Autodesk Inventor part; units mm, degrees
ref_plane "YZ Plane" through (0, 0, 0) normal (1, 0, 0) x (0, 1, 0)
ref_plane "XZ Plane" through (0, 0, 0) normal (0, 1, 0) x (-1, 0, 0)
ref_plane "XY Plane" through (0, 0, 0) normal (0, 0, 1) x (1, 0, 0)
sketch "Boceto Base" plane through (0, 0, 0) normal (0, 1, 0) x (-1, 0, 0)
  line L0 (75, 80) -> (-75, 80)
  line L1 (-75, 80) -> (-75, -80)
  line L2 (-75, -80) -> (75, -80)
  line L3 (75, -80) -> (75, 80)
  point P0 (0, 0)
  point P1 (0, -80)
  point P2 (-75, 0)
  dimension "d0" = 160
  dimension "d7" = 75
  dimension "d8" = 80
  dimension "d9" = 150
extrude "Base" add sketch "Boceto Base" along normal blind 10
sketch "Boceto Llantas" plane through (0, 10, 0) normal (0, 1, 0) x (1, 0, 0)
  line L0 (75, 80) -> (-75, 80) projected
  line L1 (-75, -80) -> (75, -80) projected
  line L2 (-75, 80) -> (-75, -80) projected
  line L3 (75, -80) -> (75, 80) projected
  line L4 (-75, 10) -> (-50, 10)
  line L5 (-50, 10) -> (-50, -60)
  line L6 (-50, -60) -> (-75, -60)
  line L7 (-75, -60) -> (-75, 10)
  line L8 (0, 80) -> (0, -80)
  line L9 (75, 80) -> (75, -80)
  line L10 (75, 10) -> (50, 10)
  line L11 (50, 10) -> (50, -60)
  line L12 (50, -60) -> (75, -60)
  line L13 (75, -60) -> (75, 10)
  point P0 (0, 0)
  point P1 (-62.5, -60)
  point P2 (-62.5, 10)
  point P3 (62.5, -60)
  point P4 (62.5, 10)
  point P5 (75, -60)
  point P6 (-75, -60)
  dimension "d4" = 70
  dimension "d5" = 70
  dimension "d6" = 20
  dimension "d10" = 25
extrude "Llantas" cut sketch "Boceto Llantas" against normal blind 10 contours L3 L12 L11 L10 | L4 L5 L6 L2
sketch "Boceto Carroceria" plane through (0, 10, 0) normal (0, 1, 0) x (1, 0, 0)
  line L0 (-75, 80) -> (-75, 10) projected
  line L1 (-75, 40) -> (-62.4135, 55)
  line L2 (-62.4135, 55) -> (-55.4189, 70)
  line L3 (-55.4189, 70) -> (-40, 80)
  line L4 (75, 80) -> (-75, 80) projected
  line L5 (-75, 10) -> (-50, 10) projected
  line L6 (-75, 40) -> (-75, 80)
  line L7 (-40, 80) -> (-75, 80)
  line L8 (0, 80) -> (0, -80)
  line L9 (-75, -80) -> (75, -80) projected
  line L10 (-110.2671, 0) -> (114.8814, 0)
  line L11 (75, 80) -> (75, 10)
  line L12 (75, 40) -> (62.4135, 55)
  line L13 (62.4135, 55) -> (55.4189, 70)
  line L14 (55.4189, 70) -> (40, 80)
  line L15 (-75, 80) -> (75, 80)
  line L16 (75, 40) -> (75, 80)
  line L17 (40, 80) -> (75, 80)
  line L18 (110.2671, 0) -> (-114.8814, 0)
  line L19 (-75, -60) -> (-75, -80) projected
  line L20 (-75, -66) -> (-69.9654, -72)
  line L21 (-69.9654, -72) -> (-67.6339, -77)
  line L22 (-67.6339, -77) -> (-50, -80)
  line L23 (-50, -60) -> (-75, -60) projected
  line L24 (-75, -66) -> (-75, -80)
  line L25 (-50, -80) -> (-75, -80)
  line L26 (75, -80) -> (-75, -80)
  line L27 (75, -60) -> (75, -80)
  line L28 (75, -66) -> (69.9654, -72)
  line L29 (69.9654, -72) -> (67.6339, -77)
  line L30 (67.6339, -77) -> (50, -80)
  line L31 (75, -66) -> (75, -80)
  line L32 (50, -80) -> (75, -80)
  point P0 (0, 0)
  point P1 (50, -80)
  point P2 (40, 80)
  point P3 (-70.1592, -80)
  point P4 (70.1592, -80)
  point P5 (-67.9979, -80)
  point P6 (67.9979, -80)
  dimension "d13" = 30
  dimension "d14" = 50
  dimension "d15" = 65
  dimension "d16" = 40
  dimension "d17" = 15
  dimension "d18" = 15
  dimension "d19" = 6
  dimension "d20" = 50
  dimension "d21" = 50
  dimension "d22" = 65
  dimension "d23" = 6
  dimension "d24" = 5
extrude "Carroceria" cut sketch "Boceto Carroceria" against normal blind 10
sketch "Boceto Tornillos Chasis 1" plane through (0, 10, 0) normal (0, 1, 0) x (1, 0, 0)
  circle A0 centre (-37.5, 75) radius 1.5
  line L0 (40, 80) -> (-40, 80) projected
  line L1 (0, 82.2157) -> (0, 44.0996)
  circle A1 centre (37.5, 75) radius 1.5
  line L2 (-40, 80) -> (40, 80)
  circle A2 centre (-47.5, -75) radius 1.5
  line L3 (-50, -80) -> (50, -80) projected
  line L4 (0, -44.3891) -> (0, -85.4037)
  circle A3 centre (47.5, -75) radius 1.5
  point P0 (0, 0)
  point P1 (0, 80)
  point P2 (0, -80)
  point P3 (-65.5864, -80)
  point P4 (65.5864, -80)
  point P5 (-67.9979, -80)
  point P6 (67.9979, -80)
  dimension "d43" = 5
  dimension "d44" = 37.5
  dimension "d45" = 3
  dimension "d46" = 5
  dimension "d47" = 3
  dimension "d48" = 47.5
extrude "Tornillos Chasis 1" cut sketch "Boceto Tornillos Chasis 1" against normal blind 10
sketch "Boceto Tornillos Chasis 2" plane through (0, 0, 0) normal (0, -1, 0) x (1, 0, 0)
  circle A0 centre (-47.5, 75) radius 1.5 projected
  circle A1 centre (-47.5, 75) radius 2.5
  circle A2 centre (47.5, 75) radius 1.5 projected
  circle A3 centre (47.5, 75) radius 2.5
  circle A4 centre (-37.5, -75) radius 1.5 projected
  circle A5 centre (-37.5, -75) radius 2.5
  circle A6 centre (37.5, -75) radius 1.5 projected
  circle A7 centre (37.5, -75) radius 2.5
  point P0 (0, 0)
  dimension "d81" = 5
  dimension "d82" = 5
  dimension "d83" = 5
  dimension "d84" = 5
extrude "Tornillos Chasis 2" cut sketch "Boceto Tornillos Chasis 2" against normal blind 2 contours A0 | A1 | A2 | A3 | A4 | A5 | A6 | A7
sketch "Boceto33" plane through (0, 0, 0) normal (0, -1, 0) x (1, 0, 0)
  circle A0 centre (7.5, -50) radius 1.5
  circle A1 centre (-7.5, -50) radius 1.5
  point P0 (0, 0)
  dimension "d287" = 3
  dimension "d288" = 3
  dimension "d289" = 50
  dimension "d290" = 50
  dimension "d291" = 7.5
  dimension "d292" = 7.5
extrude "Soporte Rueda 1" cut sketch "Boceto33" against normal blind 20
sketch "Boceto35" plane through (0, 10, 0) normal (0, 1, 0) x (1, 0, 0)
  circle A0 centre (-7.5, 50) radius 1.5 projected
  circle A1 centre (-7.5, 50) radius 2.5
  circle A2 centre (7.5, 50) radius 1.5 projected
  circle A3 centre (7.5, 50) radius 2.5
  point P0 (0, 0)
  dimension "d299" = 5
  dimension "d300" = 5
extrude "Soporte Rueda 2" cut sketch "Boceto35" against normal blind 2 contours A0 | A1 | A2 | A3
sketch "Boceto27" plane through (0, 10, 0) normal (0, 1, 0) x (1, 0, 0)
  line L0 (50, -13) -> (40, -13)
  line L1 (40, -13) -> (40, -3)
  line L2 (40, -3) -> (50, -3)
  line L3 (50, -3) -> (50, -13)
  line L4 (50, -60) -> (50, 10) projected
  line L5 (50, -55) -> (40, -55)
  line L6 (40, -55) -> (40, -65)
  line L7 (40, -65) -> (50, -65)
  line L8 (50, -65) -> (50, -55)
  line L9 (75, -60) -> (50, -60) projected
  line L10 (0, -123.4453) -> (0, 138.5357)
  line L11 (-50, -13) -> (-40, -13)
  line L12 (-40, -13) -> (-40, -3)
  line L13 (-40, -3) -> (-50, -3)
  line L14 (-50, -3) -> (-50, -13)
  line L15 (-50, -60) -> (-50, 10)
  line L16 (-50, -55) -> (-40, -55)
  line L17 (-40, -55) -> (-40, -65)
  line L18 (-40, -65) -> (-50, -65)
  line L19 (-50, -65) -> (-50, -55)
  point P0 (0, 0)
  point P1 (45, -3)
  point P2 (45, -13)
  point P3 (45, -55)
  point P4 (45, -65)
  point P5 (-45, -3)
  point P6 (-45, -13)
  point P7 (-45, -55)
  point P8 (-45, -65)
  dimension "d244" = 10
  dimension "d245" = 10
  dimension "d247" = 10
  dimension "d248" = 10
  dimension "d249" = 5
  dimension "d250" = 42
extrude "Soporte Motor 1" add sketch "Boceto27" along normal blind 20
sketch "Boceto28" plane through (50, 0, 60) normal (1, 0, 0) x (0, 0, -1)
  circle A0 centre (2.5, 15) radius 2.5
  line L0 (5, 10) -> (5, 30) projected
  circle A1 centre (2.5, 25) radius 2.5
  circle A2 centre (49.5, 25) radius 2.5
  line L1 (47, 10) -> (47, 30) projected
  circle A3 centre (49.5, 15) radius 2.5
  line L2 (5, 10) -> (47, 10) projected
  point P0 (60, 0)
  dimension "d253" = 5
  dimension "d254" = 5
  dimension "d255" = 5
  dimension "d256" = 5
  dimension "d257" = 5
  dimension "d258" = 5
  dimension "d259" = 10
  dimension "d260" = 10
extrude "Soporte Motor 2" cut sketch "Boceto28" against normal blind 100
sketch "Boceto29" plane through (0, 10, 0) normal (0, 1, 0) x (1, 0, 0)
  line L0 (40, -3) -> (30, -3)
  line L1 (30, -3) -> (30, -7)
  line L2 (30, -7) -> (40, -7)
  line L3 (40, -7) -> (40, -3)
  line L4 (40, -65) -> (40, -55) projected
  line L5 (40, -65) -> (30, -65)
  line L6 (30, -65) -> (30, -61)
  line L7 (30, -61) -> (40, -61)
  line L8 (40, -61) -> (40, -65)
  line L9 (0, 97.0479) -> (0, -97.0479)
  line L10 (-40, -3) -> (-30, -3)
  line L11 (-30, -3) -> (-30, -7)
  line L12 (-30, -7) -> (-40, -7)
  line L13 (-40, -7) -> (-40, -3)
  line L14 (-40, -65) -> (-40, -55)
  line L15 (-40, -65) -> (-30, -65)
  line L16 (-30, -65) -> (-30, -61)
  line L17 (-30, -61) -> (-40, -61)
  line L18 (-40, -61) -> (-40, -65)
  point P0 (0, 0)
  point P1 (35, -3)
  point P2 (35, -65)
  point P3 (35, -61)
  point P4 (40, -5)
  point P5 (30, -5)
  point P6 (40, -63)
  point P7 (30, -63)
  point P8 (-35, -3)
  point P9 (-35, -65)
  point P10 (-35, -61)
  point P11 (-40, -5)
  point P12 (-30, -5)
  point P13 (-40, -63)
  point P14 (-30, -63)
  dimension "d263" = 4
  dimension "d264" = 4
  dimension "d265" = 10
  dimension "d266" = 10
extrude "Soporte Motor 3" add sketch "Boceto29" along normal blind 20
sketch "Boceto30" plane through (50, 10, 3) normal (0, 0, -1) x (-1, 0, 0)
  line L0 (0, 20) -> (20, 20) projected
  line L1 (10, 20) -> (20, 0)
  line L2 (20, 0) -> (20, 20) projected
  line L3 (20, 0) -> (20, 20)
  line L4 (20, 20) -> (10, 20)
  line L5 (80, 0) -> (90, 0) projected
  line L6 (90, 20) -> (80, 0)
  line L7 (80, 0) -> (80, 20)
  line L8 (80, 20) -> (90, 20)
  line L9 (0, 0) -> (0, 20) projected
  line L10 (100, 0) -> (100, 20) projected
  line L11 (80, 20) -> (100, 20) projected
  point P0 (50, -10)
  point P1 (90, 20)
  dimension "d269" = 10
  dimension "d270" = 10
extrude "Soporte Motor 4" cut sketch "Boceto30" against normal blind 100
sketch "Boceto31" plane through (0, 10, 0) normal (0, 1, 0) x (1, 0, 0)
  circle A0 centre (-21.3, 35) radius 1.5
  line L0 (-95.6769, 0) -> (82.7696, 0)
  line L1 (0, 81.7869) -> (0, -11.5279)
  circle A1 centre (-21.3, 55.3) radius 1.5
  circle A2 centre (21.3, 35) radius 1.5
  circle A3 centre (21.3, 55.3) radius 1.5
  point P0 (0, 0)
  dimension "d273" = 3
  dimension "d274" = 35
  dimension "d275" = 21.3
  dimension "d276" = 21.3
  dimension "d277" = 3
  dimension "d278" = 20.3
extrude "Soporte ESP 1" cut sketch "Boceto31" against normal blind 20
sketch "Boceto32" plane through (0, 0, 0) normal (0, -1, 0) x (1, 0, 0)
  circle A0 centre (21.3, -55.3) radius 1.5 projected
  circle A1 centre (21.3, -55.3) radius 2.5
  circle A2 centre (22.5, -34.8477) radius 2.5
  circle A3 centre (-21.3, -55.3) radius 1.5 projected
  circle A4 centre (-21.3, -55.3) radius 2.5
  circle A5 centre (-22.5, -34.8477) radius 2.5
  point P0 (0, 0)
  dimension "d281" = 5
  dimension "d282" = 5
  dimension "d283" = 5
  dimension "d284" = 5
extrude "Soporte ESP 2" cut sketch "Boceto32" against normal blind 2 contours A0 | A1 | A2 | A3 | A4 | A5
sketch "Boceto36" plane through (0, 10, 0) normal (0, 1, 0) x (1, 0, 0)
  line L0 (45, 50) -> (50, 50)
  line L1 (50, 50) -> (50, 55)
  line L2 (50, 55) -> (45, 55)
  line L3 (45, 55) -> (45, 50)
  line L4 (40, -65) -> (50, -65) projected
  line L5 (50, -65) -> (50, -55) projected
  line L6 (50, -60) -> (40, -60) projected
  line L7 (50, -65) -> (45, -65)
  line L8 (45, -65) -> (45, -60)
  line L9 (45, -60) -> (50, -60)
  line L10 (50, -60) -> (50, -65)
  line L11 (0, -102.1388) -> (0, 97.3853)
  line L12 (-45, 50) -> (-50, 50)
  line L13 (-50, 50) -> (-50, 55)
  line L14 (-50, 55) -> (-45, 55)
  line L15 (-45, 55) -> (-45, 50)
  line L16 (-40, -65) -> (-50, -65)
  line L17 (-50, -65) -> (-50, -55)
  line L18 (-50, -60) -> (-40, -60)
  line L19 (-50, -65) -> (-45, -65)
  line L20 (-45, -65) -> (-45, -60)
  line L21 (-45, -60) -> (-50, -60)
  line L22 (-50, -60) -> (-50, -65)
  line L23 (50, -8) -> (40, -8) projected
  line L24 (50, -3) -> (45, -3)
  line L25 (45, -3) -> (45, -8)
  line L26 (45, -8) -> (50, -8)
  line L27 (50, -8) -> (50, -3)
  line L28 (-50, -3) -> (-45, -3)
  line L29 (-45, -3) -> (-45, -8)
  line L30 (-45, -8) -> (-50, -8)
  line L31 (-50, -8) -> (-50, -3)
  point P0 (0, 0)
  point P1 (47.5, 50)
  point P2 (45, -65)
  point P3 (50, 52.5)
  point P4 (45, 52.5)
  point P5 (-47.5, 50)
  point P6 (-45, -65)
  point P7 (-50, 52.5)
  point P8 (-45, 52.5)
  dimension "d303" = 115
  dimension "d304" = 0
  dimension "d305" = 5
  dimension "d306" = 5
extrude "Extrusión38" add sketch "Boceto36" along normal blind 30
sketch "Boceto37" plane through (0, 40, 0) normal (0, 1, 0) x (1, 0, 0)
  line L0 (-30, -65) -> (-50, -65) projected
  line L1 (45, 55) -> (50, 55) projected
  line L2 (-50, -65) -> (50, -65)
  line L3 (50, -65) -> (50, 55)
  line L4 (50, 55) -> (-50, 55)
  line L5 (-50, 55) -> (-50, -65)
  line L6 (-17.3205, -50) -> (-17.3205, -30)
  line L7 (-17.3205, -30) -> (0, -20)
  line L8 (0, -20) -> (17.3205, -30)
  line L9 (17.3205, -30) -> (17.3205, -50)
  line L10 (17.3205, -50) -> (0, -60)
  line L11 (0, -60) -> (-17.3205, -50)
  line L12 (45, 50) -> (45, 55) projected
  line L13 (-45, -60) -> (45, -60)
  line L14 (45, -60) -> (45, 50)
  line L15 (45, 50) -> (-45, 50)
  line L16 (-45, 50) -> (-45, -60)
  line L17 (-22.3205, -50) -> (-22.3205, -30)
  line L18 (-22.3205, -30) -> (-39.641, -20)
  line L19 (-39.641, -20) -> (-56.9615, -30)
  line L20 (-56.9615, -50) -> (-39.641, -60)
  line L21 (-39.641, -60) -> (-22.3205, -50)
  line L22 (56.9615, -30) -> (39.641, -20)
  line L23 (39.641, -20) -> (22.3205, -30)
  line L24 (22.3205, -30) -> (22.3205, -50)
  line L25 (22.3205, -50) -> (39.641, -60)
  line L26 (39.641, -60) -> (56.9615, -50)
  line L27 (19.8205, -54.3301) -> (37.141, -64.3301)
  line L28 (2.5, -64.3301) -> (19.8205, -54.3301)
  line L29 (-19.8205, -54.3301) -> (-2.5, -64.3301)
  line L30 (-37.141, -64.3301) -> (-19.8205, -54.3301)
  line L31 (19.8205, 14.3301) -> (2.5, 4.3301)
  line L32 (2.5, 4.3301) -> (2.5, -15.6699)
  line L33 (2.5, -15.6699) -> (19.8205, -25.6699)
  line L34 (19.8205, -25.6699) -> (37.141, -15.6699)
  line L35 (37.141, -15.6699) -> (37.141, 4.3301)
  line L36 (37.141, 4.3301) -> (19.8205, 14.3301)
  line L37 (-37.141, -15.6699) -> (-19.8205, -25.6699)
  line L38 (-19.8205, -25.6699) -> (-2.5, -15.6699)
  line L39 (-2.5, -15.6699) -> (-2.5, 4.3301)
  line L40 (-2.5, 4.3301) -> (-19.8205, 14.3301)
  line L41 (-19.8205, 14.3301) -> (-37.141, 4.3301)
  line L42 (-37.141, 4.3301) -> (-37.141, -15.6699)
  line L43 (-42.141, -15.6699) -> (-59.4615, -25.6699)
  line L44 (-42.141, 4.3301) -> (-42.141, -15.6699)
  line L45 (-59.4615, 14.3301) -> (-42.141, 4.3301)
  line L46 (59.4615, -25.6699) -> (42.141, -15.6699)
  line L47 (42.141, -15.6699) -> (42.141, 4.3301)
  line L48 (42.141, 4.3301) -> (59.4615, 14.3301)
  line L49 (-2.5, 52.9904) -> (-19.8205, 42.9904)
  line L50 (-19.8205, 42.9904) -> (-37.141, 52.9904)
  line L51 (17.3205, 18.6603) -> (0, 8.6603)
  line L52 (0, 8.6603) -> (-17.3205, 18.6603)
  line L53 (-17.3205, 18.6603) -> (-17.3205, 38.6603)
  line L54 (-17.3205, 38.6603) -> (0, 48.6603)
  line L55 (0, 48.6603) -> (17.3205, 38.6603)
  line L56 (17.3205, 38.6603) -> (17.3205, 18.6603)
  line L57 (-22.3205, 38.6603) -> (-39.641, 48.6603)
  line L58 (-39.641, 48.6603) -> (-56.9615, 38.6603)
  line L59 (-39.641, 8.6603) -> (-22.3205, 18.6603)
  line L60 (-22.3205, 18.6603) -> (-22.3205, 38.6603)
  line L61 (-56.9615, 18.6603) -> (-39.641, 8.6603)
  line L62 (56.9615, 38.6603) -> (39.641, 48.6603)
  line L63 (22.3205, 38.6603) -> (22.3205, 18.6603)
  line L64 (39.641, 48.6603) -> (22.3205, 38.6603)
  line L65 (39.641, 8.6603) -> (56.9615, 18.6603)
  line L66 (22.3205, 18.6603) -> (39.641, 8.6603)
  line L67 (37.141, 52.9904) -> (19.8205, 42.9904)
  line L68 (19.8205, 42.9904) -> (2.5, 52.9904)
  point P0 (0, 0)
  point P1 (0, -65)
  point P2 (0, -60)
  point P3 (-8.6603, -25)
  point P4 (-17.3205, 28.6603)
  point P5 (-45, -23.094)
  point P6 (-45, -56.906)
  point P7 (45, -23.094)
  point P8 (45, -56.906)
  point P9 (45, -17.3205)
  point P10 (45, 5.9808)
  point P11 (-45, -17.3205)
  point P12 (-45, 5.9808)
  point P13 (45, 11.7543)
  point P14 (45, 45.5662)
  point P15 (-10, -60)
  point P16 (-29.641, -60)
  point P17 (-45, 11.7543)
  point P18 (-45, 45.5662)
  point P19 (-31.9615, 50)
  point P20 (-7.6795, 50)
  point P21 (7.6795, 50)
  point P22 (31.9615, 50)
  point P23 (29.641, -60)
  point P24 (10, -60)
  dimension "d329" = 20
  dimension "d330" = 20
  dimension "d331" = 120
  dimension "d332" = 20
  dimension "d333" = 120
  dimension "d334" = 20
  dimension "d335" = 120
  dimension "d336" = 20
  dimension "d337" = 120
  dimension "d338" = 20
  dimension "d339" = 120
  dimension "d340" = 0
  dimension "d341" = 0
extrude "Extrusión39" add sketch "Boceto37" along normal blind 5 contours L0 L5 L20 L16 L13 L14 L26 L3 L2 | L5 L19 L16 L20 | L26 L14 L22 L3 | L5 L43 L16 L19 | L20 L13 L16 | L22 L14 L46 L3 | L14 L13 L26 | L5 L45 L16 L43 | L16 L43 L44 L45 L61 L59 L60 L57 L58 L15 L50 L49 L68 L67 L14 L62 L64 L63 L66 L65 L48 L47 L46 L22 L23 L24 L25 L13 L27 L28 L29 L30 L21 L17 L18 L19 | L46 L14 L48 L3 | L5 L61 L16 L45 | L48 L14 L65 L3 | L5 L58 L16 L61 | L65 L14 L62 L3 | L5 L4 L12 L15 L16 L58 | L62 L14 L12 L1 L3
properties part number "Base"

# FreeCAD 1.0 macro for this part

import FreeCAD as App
import Part
import Sketcher
Q = App.Units.Quantity


def add_polygon(sketch, points):
    """Adds a closed chain of lines whose ends are joined by coincident constraints."""
    first, n = sketch.GeometryCount, len(points)
    for a, b in zip(points, points[1:] + points[:1]):
        sketch.addGeometry(Part.LineSegment(App.Vector(*a, 0), App.Vector(*b, 0)), False)
    for i in range(n):
        sketch.addConstraint(Sketcher.Constraint("Coincident", first + i, 2, first + (i + 1) % n, 1))

doc = App.newDocument("Part")
body = doc.addObject("PartDesign::Body", "Body")

sketch1 = body.newObject("Sketcher::SketchObject", "Sketch")
sketch1.AttachmentSupport = (doc.getObject("XZ_Plane"), [""])
sketch1.MapMode = "FlatFace"
add_polygon(sketch1, [(-75, -80), (-75, 80), (75, 80), (75, -80)])
sketch1.addConstraint(Sketcher.Constraint("Vertical", 0))
sketch1.addConstraint(Sketcher.Constraint("Horizontal", 1))
sketch1.addConstraint(Sketcher.Constraint("Vertical", 2))
sketch1.addConstraint(Sketcher.Constraint("Horizontal", 3))
sketch1.addConstraint(Sketcher.Constraint("Symmetric", 0, 2, 2, 2, -1, 1))
sketch1.addConstraint(Sketcher.Constraint("DistanceX", 1, 1, 1, 2, 150.0))
sketch1.addConstraint(Sketcher.Constraint("DistanceY", 0, 1, 0, 2, 160.0))
pad1 = body.newObject("PartDesign::Pad", "Pad")
pad1.Profile = sketch1
pad1.Length = 10
pad1.Reversed = True

sketch2 = body.newObject("Sketcher::SketchObject", "Sketch001")
sketch2.AttachmentSupport = (doc.getObject("XZ_Plane"), [""])
sketch2.MapMode = "FlatFace"
sketch2.AttachmentOffset = App.Placement(App.Vector(0, 0, -10), App.Rotation())
add_polygon(sketch2, [(75, 60), (75, -10), (50, -10), (50, 60)])
add_polygon(sketch2, [(-50, -10), (-75, -10), (-75, 60), (-50, 60)])
sketch2.addConstraint(Sketcher.Constraint("Vertical", 0))
sketch2.addConstraint(Sketcher.Constraint("Horizontal", 1))
sketch2.addConstraint(Sketcher.Constraint("Vertical", 2))
sketch2.addConstraint(Sketcher.Constraint("Horizontal", 3))
sketch2.addConstraint(Sketcher.Constraint("Horizontal", 4))
sketch2.addConstraint(Sketcher.Constraint("Vertical", 5))
sketch2.addConstraint(Sketcher.Constraint("Horizontal", 6))
sketch2.addConstraint(Sketcher.Constraint("Vertical", 7))
sketch2.addConstraint(Sketcher.Constraint("Symmetric", 0, 2, 4, 2, -2))
sketch2.addConstraint(Sketcher.Constraint("Symmetric", 2, 2, 6, 2, -2))
sketch2.addConstraint(Sketcher.Constraint("DistanceX", 1, 2, 1, 1, 25.0))
sketch2.addConstraint(Sketcher.Constraint("DistanceY", 0, 2, 0, 1, 70.0))
sketch2.addConstraint(Sketcher.Constraint("DistanceX", -1, 1, 0, 2, 75.0))
sketch2.addConstraint(Sketcher.Constraint("DistanceY", 0, 2, -1, 1, 10.0))
pocket1 = body.newObject("PartDesign::Pocket", "Pocket")
pocket1.Profile = sketch2
pocket1.Length = 10
pocket1.Reversed = True

sketch3 = body.newObject("Sketcher::SketchObject", "Sketch002")
sketch3.AttachmentSupport = (doc.getObject("XZ_Plane"), [""])
sketch3.MapMode = "FlatFace"
sketch3.AttachmentOffset = App.Placement(App.Vector(0, 0, -10), App.Rotation())
add_polygon(sketch3, [(-40, -80), (-75, -80), (-75, -40), (-62, -55), (-55, -70)])
add_polygon(sketch3, [(75, -80), (40, -80), (55, -70), (62, -55), (75, -40)])
add_polygon(sketch3, [(68, 77), (50, 80), (75, 80), (75, 66), (70, 72)])
add_polygon(sketch3, [(-75, 80), (-50, 80), (-68, 77), (-70, 72), (-75, 66)])
sketch3.addConstraint(Sketcher.Constraint("Horizontal", 0))
sketch3.addConstraint(Sketcher.Constraint("Vertical", 1))
sketch3.addConstraint(Sketcher.Constraint("Horizontal", 5))
sketch3.addConstraint(Sketcher.Constraint("Vertical", 9))
sketch3.addConstraint(Sketcher.Constraint("Horizontal", 11))
sketch3.addConstraint(Sketcher.Constraint("Vertical", 12))
sketch3.addConstraint(Sketcher.Constraint("Horizontal", 15))
sketch3.addConstraint(Sketcher.Constraint("Vertical", 19))
sketch3.addConstraint(Sketcher.Constraint("Symmetric", 0, 2, 11, 2, -1, 1))
sketch3.addConstraint(Sketcher.Constraint("Symmetric", 9, 2, 19, 2, -1, 1))
sketch3.addConstraint(Sketcher.Constraint("Symmetric", 4, 2, 5, 2, -2))
sketch3.addConstraint(Sketcher.Constraint("Symmetric", 3, 2, 6, 2, -2))
sketch3.addConstraint(Sketcher.Constraint("Symmetric", 2, 2, 7, 2, -2))
sketch3.addConstraint(Sketcher.Constraint("Symmetric", 1, 2, 8, 2, -2))
sketch3.addConstraint(Sketcher.Constraint("Symmetric", 14, 2, 16, 2, -2))
sketch3.addConstraint(Sketcher.Constraint("Symmetric", 13, 2, 17, 2, -2))
sketch3.addConstraint(Sketcher.Constraint("Parallel", 2, 13))
sketch3.addConstraint(Sketcher.Constraint("Parallel", 3, 14))
sketch3.addConstraint(Sketcher.Constraint("Parallel", 8, 18))
sketch3.addConstraint(Sketcher.Constraint("Equal", 11, 15))
sketch3.addConstraint(Sketcher.Constraint("DistanceY", 1, 1, 1, 2, 40.0))
sketch3.addConstraint(Sketcher.Constraint("Angle", 2, Q("-50 deg")))
sketch3.addConstraint(Sketcher.Constraint("Angle", 3, Q("-65 deg")))
sketch3.addConstraint(Sketcher.Constraint("DistanceY", 1, 2, -1, 1, 40.0))
sketch3.addConstraint(Sketcher.Constraint("DistanceX", 4, 2, -1, 1, 40.0))
sketch3.addConstraint(Sketcher.Constraint("DistanceX", -1, 1, 10, 2, 50.0))
sketch3.addConstraint(Sketcher.Constraint("DistanceY", 2, 2, 1, 2, 15.0))
sketch3.addConstraint(Sketcher.Constraint("DistanceY", 3, 2, 2, 2, 15.0))
sketch3.addConstraint(Sketcher.Constraint("DistanceY", 12, 2, 13, 2, 6.0))
sketch3.addConstraint(Sketcher.Constraint("DistanceY", 13, 2, 14, 2, 5.0))
sketch3.addConstraint(Sketcher.Constraint("DistanceX", 0, 2, 0, 1, 35.0))
sketch3.addConstraint(Sketcher.Constraint("DistanceY", 12, 2, 12, 1, 14.0))
pocket2 = body.newObject("PartDesign::Pocket", "Pocket001")
pocket2.Profile = sketch3
pocket2.Length = 10
pocket2.Reversed = True

sketch4 = body.newObject("Sketcher::SketchObject", "Sketch003")
sketch4.AttachmentSupport = (doc.getObject("XZ_Plane"), [""])
sketch4.MapMode = "FlatFace"
sketch4.AttachmentOffset = App.Placement(App.Vector(0, 0, -10), App.Rotation())
sketch4.addGeometry(Part.Circle(App.Vector(-37.5, -75, 0), App.Vector(0, 0, 1), 1.5), False)
sketch4.addGeometry(Part.Circle(App.Vector(37.5, -75, 0), App.Vector(0, 0, 1), 1.5), False)
sketch4.addGeometry(Part.Circle(App.Vector(-47.5, 75, 0), App.Vector(0, 0, 1), 1.5), False)
sketch4.addGeometry(Part.Circle(App.Vector(47.5, 75, 0), App.Vector(0, 0, 1), 1.5), False)
sketch4.addConstraint(Sketcher.Constraint("Equal", 0, 1))
sketch4.addConstraint(Sketcher.Constraint("Equal", 1, 2))
sketch4.addConstraint(Sketcher.Constraint("Equal", 2, 3))
sketch4.addConstraint(Sketcher.Constraint("Symmetric", 0, 3, 1, 3, -2))
sketch4.addConstraint(Sketcher.Constraint("Symmetric", 2, 3, 3, 3, -2))
sketch4.addConstraint(Sketcher.Constraint("Diameter", 0, 3.0))
sketch4.addConstraint(Sketcher.Constraint("DistanceX", 0, 3, -1, 1, 37.5))
sketch4.addConstraint(Sketcher.Constraint("DistanceX", 2, 3, -1, 1, 47.5))
sketch4.addConstraint(Sketcher.Constraint("DistanceY", 0, 3, -1, 1, 75.0))
sketch4.addConstraint(Sketcher.Constraint("DistanceY", -1, 1, 2, 3, 75.0))
pocket3 = body.newObject("PartDesign::Pocket", "Pocket002")
pocket3.Profile = sketch4
pocket3.Length = 10
pocket3.Reversed = True

sketch5 = body.newObject("Sketcher::SketchObject", "Sketch004")
sketch5.AttachmentSupport = (doc.getObject("XZ_Plane"), [""])
sketch5.MapMode = "FlatFace"
sketch5.addGeometry(Part.Circle(App.Vector(-47.5, 75, 0), App.Vector(0, 0, 1), 2.5), False)
sketch5.addGeometry(Part.Circle(App.Vector(47.5, 75, 0), App.Vector(0, 0, 1), 2.5), False)
sketch5.addGeometry(Part.Circle(App.Vector(-37.5, -75, 0), App.Vector(0, 0, 1), 2.5), False)
sketch5.addGeometry(Part.Circle(App.Vector(37.5, -75, 0), App.Vector(0, 0, 1), 2.5), False)
sketch5.addConstraint(Sketcher.Constraint("Equal", 0, 1))
sketch5.addConstraint(Sketcher.Constraint("Equal", 1, 2))
sketch5.addConstraint(Sketcher.Constraint("Equal", 2, 3))
sketch5.addConstraint(Sketcher.Constraint("Symmetric", 0, 3, 1, 3, -2))
sketch5.addConstraint(Sketcher.Constraint("Symmetric", 2, 3, 3, 3, -2))
sketch5.addConstraint(Sketcher.Constraint("Diameter", 0, 5.0))
sketch5.addConstraint(Sketcher.Constraint("DistanceY", -1, 1, 0, 3, 75.0))
sketch5.addConstraint(Sketcher.Constraint("DistanceY", 2, 3, -1, 1, 75.0))
sketch5.addConstraint(Sketcher.Constraint("DistanceX", 0, 3, 1, 3, 95.0))
sketch5.addConstraint(Sketcher.Constraint("DistanceX", 0, 3, 2, 3, 10.0))
pocket4 = body.newObject("PartDesign::Pocket", "Pocket003")
pocket4.Profile = sketch5
pocket4.Length = 2

sketch6 = body.newObject("Sketcher::SketchObject", "Sketch005")
sketch6.AttachmentSupport = (doc.getObject("XZ_Plane"), [""])
sketch6.MapMode = "FlatFace"
sketch6.addGeometry(Part.Circle(App.Vector(7.5, -50, 0), App.Vector(0, 0, 1), 1.5), False)
sketch6.addGeometry(Part.Circle(App.Vector(-7.5, -50, 0), App.Vector(0, 0, 1), 1.5), False)
sketch6.addConstraint(Sketcher.Constraint("Equal", 0, 1))
sketch6.addConstraint(Sketcher.Constraint("Symmetric", 0, 3, 1, 3, -2))
sketch6.addConstraint(Sketcher.Constraint("Diameter", 0, 3.0))
sketch6.addConstraint(Sketcher.Constraint("DistanceY", 0, 3, -1, 1, 50.0))
sketch6.addConstraint(Sketcher.Constraint("DistanceX", -1, 1, 0, 3, 7.5))
pocket5 = body.newObject("PartDesign::Pocket", "Pocket004")
pocket5.Profile = sketch6
pocket5.Length = 20

sketch7 = body.newObject("Sketcher::SketchObject", "Sketch006")
sketch7.AttachmentSupport = (doc.getObject("XZ_Plane"), [""])
sketch7.MapMode = "FlatFace"
sketch7.AttachmentOffset = App.Placement(App.Vector(0, 0, -10), App.Rotation())
sketch7.addGeometry(Part.Circle(App.Vector(-7.5, -50, 0), App.Vector(0, 0, 1), 2.5), False)
sketch7.addGeometry(Part.Circle(App.Vector(7.5, -50, 0), App.Vector(0, 0, 1), 2.5), False)
sketch7.addConstraint(Sketcher.Constraint("Equal", 0, 1))
sketch7.addConstraint(Sketcher.Constraint("Symmetric", 0, 3, 1, 3, -2))
sketch7.addConstraint(Sketcher.Constraint("Diameter", 0, 5.0))
sketch7.addConstraint(Sketcher.Constraint("DistanceY", 0, 3, -1, 1, 50.0))
sketch7.addConstraint(Sketcher.Constraint("DistanceX", 0, 3, 1, 3, 15.0))
pocket6 = body.newObject("PartDesign::Pocket", "Pocket005")
pocket6.Profile = sketch7
pocket6.Length = 2
pocket6.Reversed = True

sketch8 = body.newObject("Sketcher::SketchObject", "Sketch007")
sketch8.AttachmentSupport = (doc.getObject("XZ_Plane"), [""])
sketch8.MapMode = "FlatFace"
sketch8.AttachmentOffset = App.Placement(App.Vector(0, 0, -10), App.Rotation())
add_polygon(sketch8, [(40, 13), (50, 13), (50, 3), (40, 3)])
add_polygon(sketch8, [(50, 65), (50, 55), (40, 55), (40, 65)])
add_polygon(sketch8, [(-50, 3), (-50, 13), (-40, 13), (-40, 3)])
add_polygon(sketch8, [(-40, 55), (-50, 55), (-50, 65), (-40, 65)])
sketch8.addConstraint(Sketcher.Constraint("Horizontal", 0))
sketch8.addConstraint(Sketcher.Constraint("Vertical", 1))
sketch8.addConstraint(Sketcher.Constraint("Horizontal", 2))
sketch8.addConstraint(Sketcher.Constraint("Vertical", 3))
sketch8.addConstraint(Sketcher.Constraint("Vertical", 4))
sketch8.addConstraint(Sketcher.Constraint("Horizontal", 5))
sketch8.addConstraint(Sketcher.Constraint("Vertical", 6))
sketch8.addConstraint(Sketcher.Constraint("Horizontal", 7))
sketch8.addConstraint(Sketcher.Constraint("Vertical", 8))
sketch8.addConstraint(Sketcher.Constraint("Horizontal", 9))
sketch8.addConstraint(Sketcher.Constraint("Vertical", 10))
sketch8.addConstraint(Sketcher.Constraint("Horizontal", 11))
sketch8.addConstraint(Sketcher.Constraint("Horizontal", 12))
sketch8.addConstraint(Sketcher.Constraint("Vertical", 13))
sketch8.addConstraint(Sketcher.Constraint("Horizontal", 14))
sketch8.addConstraint(Sketcher.Constraint("Vertical", 15))
sketch8.addConstraint(Sketcher.Constraint("Symmetric", 0, 2, 8, 2, -2))
sketch8.addConstraint(Sketcher.Constraint("Symmetric", 2, 2, 10, 2, -2))
sketch8.addConstraint(Sketcher.Constraint("Symmetric", 4, 2, 12, 2, -2))
sketch8.addConstraint(Sketcher.Constraint("Symmetric", 6, 2, 14, 2, -2))
sketch8.addConstraint(Sketcher.Constraint("Vertical", 1, 2, 4, 2))
sketch8.addConstraint(Sketcher.Constraint("Vertical", 3, 2, 5, 2))
sketch8.addConstraint(Sketcher.Constraint("Equal", 14, 1))
sketch8.addConstraint(Sketcher.Constraint("Equal", 3, 4))
sketch8.addConstraint(Sketcher.Constraint("DistanceX", 0, 1, 0, 2, 10.0))
sketch8.addConstraint(Sketcher.Constraint("DistanceY", 0, 2, 4, 2, 42.0))
sketch8.addConstraint(Sketcher.Constraint("DistanceX", -1, 1, 0, 2, 50.0))
sketch8.addConstraint(Sketcher.Constraint("DistanceY", -1, 1, 0, 2, 13.0))
pad2 = body.newObject("PartDesign::Pad", "Pad001")
pad2.Profile = sketch8
pad2.Length = 20
pad2.Reversed = True

sketch9 = body.newObject("Sketcher::SketchObject", "Sketch008")
sketch9.AttachmentSupport = (doc.getObject("YZ_Plane"), [""])
sketch9.MapMode = "FlatFace"
sketch9.AttachmentOffset = App.Placement(App.Vector(0, 0, 50), App.Rotation())
sketch9.addGeometry(Part.Circle(App.Vector(15, 57.5, 0), App.Vector(0, 0, 1), 2.5), False)
sketch9.addGeometry(Part.Circle(App.Vector(25, 10.5, 0), App.Vector(0, 0, 1), 2.5), False)
sketch9.addGeometry(Part.Circle(App.Vector(15, 10.5, 0), App.Vector(0, 0, 1), 2.5), False)
sketch9.addGeometry(Part.Circle(App.Vector(25, 57.5, 0), App.Vector(0, 0, 1), 2.5), False)
sketch9.addConstraint(Sketcher.Constraint("Equal", 0, 1))
sketch9.addConstraint(Sketcher.Constraint("Equal", 1, 2))
sketch9.addConstraint(Sketcher.Constraint("Equal", 2, 3))
sketch9.addConstraint(Sketcher.Constraint("Horizontal", 1, 3, 2, 3))
sketch9.addConstraint(Sketcher.Constraint("Horizontal", 0, 3, 3, 3))
sketch9.addConstraint(Sketcher.Constraint("Vertical", 0, 3, 2, 3))
sketch9.addConstraint(Sketcher.Constraint("Vertical", 1, 3, 3, 3))
sketch9.addConstraint(Sketcher.Constraint("Diameter", 0, 5.0))
sketch9.addConstraint(Sketcher.Constraint("DistanceX", 0, 3, 1, 3, 10.0))
sketch9.addConstraint(Sketcher.Constraint("DistanceX", -1, 1, 0, 3, 15.0))
sketch9.addConstraint(Sketcher.Constraint("DistanceY", 1, 3, 0, 3, 47.0))
sketch9.addConstraint(Sketcher.Constraint("DistanceY", -1, 1, 0, 3, 57.5))
pocket7 = body.newObject("PartDesign::Pocket", "Pocket006")
pocket7.Profile = sketch9
pocket7.Length = 100

sketch10 = body.newObject("Sketcher::SketchObject", "Sketch009")
sketch10.AttachmentSupport = (doc.getObject("XZ_Plane"), [""])
sketch10.MapMode = "FlatFace"
sketch10.AttachmentOffset = App.Placement(App.Vector(0, 0, -10), App.Rotation())
add_polygon(sketch10, [(40, 7), (40, 3), (30, 3), (30, 7)])
add_polygon(sketch10, [(30, 65), (40, 65), (40, 61), (30, 61)])
add_polygon(sketch10, [(-30, 3), (-40, 3), (-40, 7), (-30, 7)])
add_polygon(sketch10, [(-40, 61), (-40, 65), (-30, 65), (-30, 61)])
sketch10.addConstraint(Sketcher.Constraint("Vertical", 0))
sketch10.addConstraint(Sketcher.Constraint("Horizontal", 1))
sketch10.addConstraint(Sketcher.Constraint("Vertical", 2))
sketch10.addConstraint(Sketcher.Constraint("Horizontal", 3))
sketch10.addConstraint(Sketcher.Constraint("Horizontal", 4))
sketch10.addConstraint(Sketcher.Constraint("Vertical", 5))
sketch10.addConstraint(Sketcher.Constraint("Horizontal", 6))
sketch10.addConstraint(Sketcher.Constraint("Vertical", 7))
sketch10.addConstraint(Sketcher.Constraint("Horizontal", 8))
sketch10.addConstraint(Sketcher.Constraint("Vertical", 9))
sketch10.addConstraint(Sketcher.Constraint("Horizontal", 10))
sketch10.addConstraint(Sketcher.Constraint("Vertical", 11))
sketch10.addConstraint(Sketcher.Constraint("Vertical", 12))
sketch10.addConstraint(Sketcher.Constraint("Horizontal", 13))
sketch10.addConstraint(Sketcher.Constraint("Vertical", 14))
sketch10.addConstraint(Sketcher.Constraint("Horizontal", 15))
sketch10.addConstraint(Sketcher.Constraint("Symmetric", 0, 2, 8, 2, -2))
sketch10.addConstraint(Sketcher.Constraint("Symmetric", 2, 2, 10, 2, -2))
sketch10.addConstraint(Sketcher.Constraint("Symmetric", 4, 2, 12, 2, -2))
sketch10.addConstraint(Sketcher.Constraint("Symmetric", 6, 2, 14, 2, -2))
sketch10.addConstraint(Sketcher.Constraint("Vertical", 3, 2, 4, 2))
sketch10.addConstraint(Sketcher.Constraint("Vertical", 2, 2, 6, 2))
sketch10.addConstraint(Sketcher.Constraint("Equal", 2, 5))
sketch10.addConstraint(Sketcher.Constraint("DistanceX", 1, 2, 1, 1, 10.0))
sketch10.addConstraint(Sketcher.Constraint("DistanceY", 0, 2, 0, 1, 4.0))
sketch10.addConstraint(Sketcher.Constraint("DistanceX", -1, 1, 0, 2, 40.0))
sketch10.addConstraint(Sketcher.Constraint("DistanceY", -1, 1, 0, 2, 3.0))
sketch10.addConstraint(Sketcher.Constraint("DistanceY", -1, 1, 4, 2, 65.0))
pad3 = body.newObject("PartDesign::Pad", "Pad002")
pad3.Profile = sketch10
pad3.Length = 20
pad3.Reversed = True

sketch11 = body.newObject("Sketcher::SketchObject", "Sketch010")
sketch11.AttachmentSupport = (doc.getObject("XY_Plane"), [""])
sketch11.MapMode = "FlatFace"
sketch11.AttachmentOffset = App.Placement(App.Vector(0, 0, 3), App.Rotation())
add_polygon(sketch11, [(30, 30), (40, 30), (30, 10)])
add_polygon(sketch11, [(-30, 10), (-40, 30), (-30, 30)])
sketch11.addConstraint(Sketcher.Constraint("Horizontal", 0))
sketch11.addConstraint(Sketcher.Constraint("Vertical", 2))
sketch11.addConstraint(Sketcher.Constraint("Horizontal", 4))
sketch11.addConstraint(Sketcher.Constraint("Vertical", 5))
sketch11.addConstraint(Sketcher.Constraint("Symmetric", 0, 2, 3, 2, -2))
sketch11.addConstraint(Sketcher.Constraint("Symmetric", 1, 2, 5, 2, -2))
sketch11.addConstraint(Sketcher.Constraint("DistanceX", 0, 1, 0, 2, 10.0))
sketch11.addConstraint(Sketcher.Constraint("DistanceY", -1, 1, 1, 2, 10.0))
sketch11.addConstraint(Sketcher.Constraint("DistanceY", 2, 1, 2, 2, 20.0))
sketch11.addConstraint(Sketcher.Constraint("DistanceX", -1, 1, 0, 2, 40.0))
pocket8 = body.newObject("PartDesign::Pocket", "Pocket007")
pocket8.Profile = sketch11
pocket8.Length = 100
pocket8.Reversed = True

sketch12 = body.newObject("Sketcher::SketchObject", "Sketch011")
sketch12.AttachmentSupport = (doc.getObject("XZ_Plane"), [""])
sketch12.MapMode = "FlatFace"
sketch12.AttachmentOffset = App.Placement(App.Vector(0, 0, -10), App.Rotation())
sketch12.addGeometry(Part.Circle(App.Vector(-21.3, -35, 0), App.Vector(0, 0, 1), 1.5), False)
sketch12.addGeometry(Part.Circle(App.Vector(-21.3, -55.3, 0), App.Vector(0, 0, 1), 1.5), False)
sketch12.addGeometry(Part.Circle(App.Vector(21.3, -35, 0), App.Vector(0, 0, 1), 1.5), False)
sketch12.addGeometry(Part.Circle(App.Vector(21.3, -55.3, 0), App.Vector(0, 0, 1), 1.5), False)
sketch12.addConstraint(Sketcher.Constraint("Equal", 0, 1))
sketch12.addConstraint(Sketcher.Constraint("Equal", 1, 2))
sketch12.addConstraint(Sketcher.Constraint("Equal", 2, 3))
sketch12.addConstraint(Sketcher.Constraint("Symmetric", 0, 3, 2, 3, -2))
sketch12.addConstraint(Sketcher.Constraint("Symmetric", 1, 3, 3, 3, -2))
sketch12.addConstraint(Sketcher.Constraint("Vertical", 0, 3, 1, 3))
sketch12.addConstraint(Sketcher.Constraint("Diameter", 0, 3.0))
sketch12.addConstraint(Sketcher.Constraint("DistanceY", 0, 3, -1, 1, 35.0))
sketch12.addConstraint(Sketcher.Constraint("DistanceX", 0, 3, -1, 1, 21.3))
sketch12.addConstraint(Sketcher.Constraint("DistanceY", 1, 3, 0, 3, 20.3))
pocket9 = body.newObject("PartDesign::Pocket", "Pocket008")
pocket9.Profile = sketch12
pocket9.Length = 20
pocket9.Reversed = True

sketch13 = body.newObject("Sketcher::SketchObject", "Sketch012")
sketch13.AttachmentSupport = (doc.getObject("XZ_Plane"), [""])
sketch13.MapMode = "FlatFace"
sketch13.addGeometry(Part.Circle(App.Vector(21.3, -55.3, 0), App.Vector(0, 0, 1), 2.5), False)
sketch13.addGeometry(Part.Circle(App.Vector(22.5, -34.8, 0), App.Vector(0, 0, 1), 2.5), False)
sketch13.addGeometry(Part.Circle(App.Vector(-21.3, -55.3, 0), App.Vector(0, 0, 1), 2.5), False)
sketch13.addGeometry(Part.Circle(App.Vector(-22.5, -34.8, 0), App.Vector(0, 0, 1), 2.5), False)
sketch13.addConstraint(Sketcher.Constraint("Equal", 0, 1))
sketch13.addConstraint(Sketcher.Constraint("Equal", 1, 2))
sketch13.addConstraint(Sketcher.Constraint("Equal", 2, 3))
sketch13.addConstraint(Sketcher.Constraint("Symmetric", 0, 3, 2, 3, -2))
sketch13.addConstraint(Sketcher.Constraint("Symmetric", 1, 3, 3, 3, -2))
sketch13.addConstraint(Sketcher.Constraint("Diameter", 0, 5.0))
sketch13.addConstraint(Sketcher.Constraint("DistanceX", 3, 3, 1, 3, 45.0))
sketch13.addConstraint(Sketcher.Constraint("DistanceX", -1, 1, 0, 3, 21.3))
sketch13.addConstraint(Sketcher.Constraint("DistanceY", 0, 3, -1, 1, 55.3))
sketch13.addConstraint(Sketcher.Constraint("DistanceY", 1, 3, -1, 1, 34.8477))
pocket10 = body.newObject("PartDesign::Pocket", "Pocket009")
pocket10.Profile = sketch13
pocket10.Length = 2

sketch14 = body.newObject("Sketcher::SketchObject", "Sketch013")
sketch14.AttachmentSupport = (doc.getObject("XZ_Plane"), [""])
sketch14.MapMode = "FlatFace"
sketch14.AttachmentOffset = App.Placement(App.Vector(0, 0, -10), App.Rotation())
add_polygon(sketch14, [(45, -55), (45, -50), (50, -50), (50, -55)])
add_polygon(sketch14, [(45, 60), (45, 65), (50, 65), (50, 60)])
add_polygon(sketch14, [(-50, -50), (-45, -50), (-45, -55), (-50, -55)])
add_polygon(sketch14, [(-50, 65), (-45, 65), (-45, 60), (-50, 60)])
add_polygon(sketch14, [(45, 8), (50, 8), (50, 3), (45, 3)])
add_polygon(sketch14, [(-45, 3), (-50, 3), (-50, 8), (-45, 8)])
sketch14.addConstraint(Sketcher.Constraint("Vertical", 0))
sketch14.addConstraint(Sketcher.Constraint("Horizontal", 1))
sketch14.addConstraint(Sketcher.Constraint("Vertical", 2))
sketch14.addConstraint(Sketcher.Constraint("Horizontal", 3))
sketch14.addConstraint(Sketcher.Constraint("Vertical", 4))
sketch14.addConstraint(Sketcher.Constraint("Horizontal", 5))
sketch14.addConstraint(Sketcher.Constraint("Vertical", 6))
sketch14.addConstraint(Sketcher.Constraint("Horizontal", 7))
sketch14.addConstraint(Sketcher.Constraint("Horizontal", 8))
sketch14.addConstraint(Sketcher.Constraint("Vertical", 9))
sketch14.addConstraint(Sketcher.Constraint("Horizontal", 10))
sketch14.addConstraint(Sketcher.Constraint("Vertical", 11))
sketch14.addConstraint(Sketcher.Constraint("Horizontal", 12))
sketch14.addConstraint(Sketcher.Constraint("Vertical", 13))
sketch14.addConstraint(Sketcher.Constraint("Horizontal", 14))
sketch14.addConstraint(Sketcher.Constraint("Vertical", 15))
sketch14.addConstraint(Sketcher.Constraint("Horizontal", 16))
sketch14.addConstraint(Sketcher.Constraint("Vertical", 17))
sketch14.addConstraint(Sketcher.Constraint("Horizontal", 18))
sketch14.addConstraint(Sketcher.Constraint("Vertical", 19))
sketch14.addConstraint(Sketcher.Constraint("Horizontal", 20))
sketch14.addConstraint(Sketcher.Constraint("Vertical", 21))
sketch14.addConstraint(Sketcher.Constraint("Horizontal", 22))
sketch14.addConstraint(Sketcher.Constraint("Vertical", 23))
sketch14.addConstraint(Sketcher.Constraint("Symmetric", 0, 2, 8, 2, -2))
sketch14.addConstraint(Sketcher.Constraint("Symmetric", 2, 2, 10, 2, -2))
sketch14.addConstraint(Sketcher.Constraint("Symmetric", 4, 2, 12, 2, -2))
sketch14.addConstraint(Sketcher.Constraint("Symmetric", 6, 2, 14, 2, -2))
sketch14.addConstraint(Sketcher.Constraint("Symmetric", 17, 2, 20, 2, -2))
sketch14.addConstraint(Sketcher.Constraint("Symmetric", 19, 2, 22, 2, -2))
sketch14.addConstraint(Sketcher.Constraint("Vertical", 3, 2, 4, 2))
sketch14.addConstraint(Sketcher.Constraint("Vertical", 2, 2, 5, 2))
sketch14.addConstraint(Sketcher.Constraint("Vertical", 6, 2, 16, 2))
sketch14.addConstraint(Sketcher.Constraint("Vertical", 7, 2, 18, 2))
sketch14.addConstraint(Sketcher.Constraint("Equal", 22, 0))
sketch14.addConstraint(Sketcher.Constraint("Equal", 2, 4))
sketch14.addConstraint(Sketcher.Constraint("Equal", 15, 17))
sketch14.addConstraint(Sketcher.Constraint("DistanceX", 1, 1, 1, 2, 5.0))
sketch14.addConstraint(Sketcher.Constraint("DistanceY", 0, 2, 4, 2, 115.0))
sketch14.addConstraint(Sketcher.Constraint("DistanceX", -1, 1, 0, 2, 45.0))
sketch14.addConstraint(Sketcher.Constraint("DistanceY", 0, 2, -1, 1, 50.0))
sketch14.addConstraint(Sketcher.Constraint("DistanceY", -1, 1, 16, 2, 8.0))
pad4 = body.newObject("PartDesign::Pad", "Pad003")
pad4.Profile = sketch14
pad4.Length = 30
pad4.Reversed = True

sketch15 = body.newObject("Sketcher::SketchObject", "Sketch014")
sketch15.AttachmentSupport = (doc.getObject("XZ_Plane"), [""])
sketch15.MapMode = "FlatFace"
sketch15.AttachmentOffset = App.Placement(App.Vector(0, 0, -40), App.Rotation())
add_polygon(sketch15, [(-50, 65), (50, 65), (50, -55), (-50, -55)])
add_polygon(sketch15, [(-10, 60), (-29.6, 60), (-19.8, 54.3)])
add_polygon(sketch15, [(29.6, 60), (10, 60), (19.8, 54.3)])
add_polygon(sketch15, [(-45, 56.9), (-45, 23.1), (-39.6, 20), (-22.3, 30), (-22.3, 50), (-39.6, 60)])
add_polygon(sketch15, [(-42.1, 15.7), (-45, 17.3), (-45, -6), (-42.1, -4.3)])
add_polygon(sketch15, [(-39.6, -8.7), (-45, -11.8), (-45, -45.6), (-39.6, -48.7), (-22.3, -38.7), (-22.3, -18.7)])
add_polygon(sketch15, [(-19.8, -43), (-32, -50), (-7.7, -50)])
add_polygon(sketch15, [(19.8, -43), (7.7, -50), (32, -50)])
add_polygon(sketch15, [(39.6, -48.7), (45, -45.6), (45, -11.8), (39.6, -8.7), (22.3, -18.7), (22.3, -38.7)])
add_polygon(sketch15, [(42.1, -4.3), (45, -6), (45, 17.3), (42.1, 15.7)])
add_polygon(sketch15, [(39.6, 20), (45, 23.1), (45, 56.9), (39.6, 60), (22.3, 50), (22.3, 30)])
add_polygon(sketch15, [(-17.3, -38.7), (0, -48.7), (17.3, -38.7), (17.3, -18.7), (0, -8.7), (-17.3, -18.7)])
add_polygon(sketch15, [(-19.8, 25.7), (-37.1, 15.7), (-37.1, -4.3), (-19.8, -14.3), (-2.5, -4.3), (-2.5, 15.7)])
add_polygon(sketch15, [(17.3, 50), (0, 60), (-17.3, 50), (-17.3, 30), (0, 20), (17.3, 30)])
add_polygon(sketch15, [(2.5, -4.3), (19.8, -14.3), (37.1, -4.3), (37.1, 15.7), (19.8, 25.7), (2.5, 15.7)])
sketch15.addConstraint(Sketcher.Constraint("Horizontal", 0))
sketch15.addConstraint(Sketcher.Constraint("Vertical", 1))
sketch15.addConstraint(Sketcher.Constraint("Horizontal", 2))
sketch15.addConstraint(Sketcher.Constraint("Vertical", 3))
sketch15.addConstraint(Sketcher.Constraint("Horizontal", 4))
sketch15.addConstraint(Sketcher.Constraint("Horizontal", 7))
sketch15.addConstraint(Sketcher.Constraint("Vertical", 10))
sketch15.addConstraint(Sketcher.Constraint("Vertical", 13))
sketch15.addConstraint(Sketcher.Constraint("Vertical", 17))
sketch15.addConstraint(Sketcher.Constraint("Vertical", 19))
sketch15.addConstraint(Sketcher.Constraint("Vertical", 21))
sketch15.addConstraint(Sketcher.Constraint("Vertical", 24))
sketch15.addConstraint(Sketcher.Constraint("Horizontal", 27))
sketch15.addConstraint(Sketcher.Constraint("Horizontal", 30))
sketch15.addConstraint(Sketcher.Constraint("Vertical", 33))
sketch15.addConstraint(Sketcher.Constraint("Vertical", 36))
sketch15.addConstraint(Sketcher.Constraint("Vertical", 39))
sketch15.addConstraint(Sketcher.Constraint("Vertical", 41))
sketch15.addConstraint(Sketcher.Constraint("Vertical", 43))
sketch15.addConstraint(Sketcher.Constraint("Vertical", 46))
sketch15.addConstraint(Sketcher.Constraint("Vertical", 50))
sketch15.addConstraint(Sketcher.Constraint("Vertical", 53))
sketch15.addConstraint(Sketcher.Constraint("Vertical", 55))
sketch15.addConstraint(Sketcher.Constraint("Vertical", 58))
sketch15.addConstraint(Sketcher.Constraint("Vertical", 62))
sketch15.addConstraint(Sketcher.Constraint("Vertical", 65))
sketch15.addConstraint(Sketcher.Constraint("Vertical", 68))
sketch15.addConstraint(Sketcher.Constraint("Vertical", 71))
sketch15.addConstraint(Sketcher.Constraint("Symmetric", 6, 2, 7, 2, -2))
sketch15.addConstraint(Sketcher.Constraint("Symmetric", 5, 2, 8, 2, -2))
sketch15.addConstraint(Sketcher.Constraint("Symmetric", 27, 2, 29, 2, -2))
sketch15.addConstraint(Sketcher.Constraint("Symmetric", 28, 2, 31, 2, -2))
sketch15.addConstraint(Sketcher.Constraint("Symmetric", 21, 2, 32, 2, -2))
sketch15.addConstraint(Sketcher.Constraint("Symmetric", 25, 2, 34, 2, -2))
sketch15.addConstraint(Sketcher.Constraint("Symmetric", 24, 2, 35, 2, -2))
sketch15.addConstraint(Sketcher.Constraint("Symmetric", 22, 2, 37, 2, -2))
sketch15.addConstraint(Sketcher.Constraint("Symmetric", 17, 2, 38, 2, -2))
sketch15.addConstraint(Sketcher.Constraint("Symmetric", 19, 2, 40, 2, -2))
sketch15.addConstraint(Sketcher.Constraint("Symmetric", 10, 2, 42, 2, -2))
sketch15.addConstraint(Sketcher.Constraint("Symmetric", 14, 2, 44, 2, -2))
sketch15.addConstraint(Sketcher.Constraint("Symmetric", 13, 2, 45, 2, -2))
sketch15.addConstraint(Sketcher.Constraint("Symmetric", 11, 2, 47, 2, -2))
sketch15.addConstraint(Sketcher.Constraint("Symmetric", 50, 2, 52, 2, -2))
sketch15.addConstraint(Sketcher.Constraint("Symmetric", 62, 2, 64, 2, -2))
sketch15.addConstraint(Sketcher.Constraint("Symmetric", 56, 2, 66, 2, -2))
sketch15.addConstraint(Sketcher.Constraint("Symmetric", 55, 2, 67, 2, -2))
sketch15.addConstraint(Sketcher.Constraint("Symmetric", 59, 2, 69, 2, -2))
sketch15.addConstraint(Sketcher.Constraint("Symmetric", 58, 2, 70, 2, -2))
sketch15.addConstraint(Sketcher.Constraint("PointOnObject", 48, 2, -2))
sketch15.addConstraint(Sketcher.Constraint("PointOnObject", 51, 2, -2))
sketch15.addConstraint(Sketcher.Constraint("PointOnObject", 60, 2, -2))
sketch15.addConstraint(Sketcher.Constraint("PointOnObject", 63, 2, -2))
sketch15.addConstraint(Sketcher.Constraint("Parallel", 5, 8))
sketch15.addConstraint(Sketcher.Constraint("Parallel", 6, 9))
sketch15.addConstraint(Sketcher.Constraint("Parallel", 8, 11))
sketch15.addConstraint(Sketcher.Constraint("Parallel", 9, 12))
sketch15.addConstraint(Sketcher.Constraint("Parallel", 11, 14))
sketch15.addConstraint(Sketcher.Constraint("Parallel", 12, 15))
sketch15.addConstraint(Sketcher.Constraint("Parallel", 14, 16))
sketch15.addConstraint(Sketcher.Constraint("Parallel", 15, 18))
sketch15.addConstraint(Sketcher.Constraint("Parallel", 18, 20))
sketch15.addConstraint(Sketcher.Constraint("Parallel", 16, 22))
sketch15.addConstraint(Sketcher.Constraint("Parallel", 20, 23))
sketch15.addConstraint(Sketcher.Constraint("Parallel", 22, 25))
sketch15.addConstraint(Sketcher.Constraint("Parallel", 23, 26))
sketch15.addConstraint(Sketcher.Constraint("Parallel", 25, 28))
sketch15.addConstraint(Sketcher.Constraint("Parallel", 28, 31))
sketch15.addConstraint(Sketcher.Constraint("Parallel", 31, 34))
sketch15.addConstraint(Sketcher.Constraint("Parallel", 34, 37))
sketch15.addConstraint(Sketcher.Constraint("Parallel", 37, 38))
sketch15.addConstraint(Sketcher.Constraint("Parallel", 35, 40))
sketch15.addConstraint(Sketcher.Constraint("Parallel", 38, 44))
sketch15.addConstraint(Sketcher.Constraint("Parallel", 44, 47))
sketch15.addConstraint(Sketcher.Constraint("Parallel", 47, 48))
sketch15.addConstraint(Sketcher.Constraint("Parallel", 45, 49))
sketch15.addConstraint(Sketcher.Constraint("Parallel", 48, 51))
sketch15.addConstraint(Sketcher.Constraint("Parallel", 52, 54))
sketch15.addConstraint(Sketcher.Constraint("Parallel", 51, 56))
sketch15.addConstraint(Sketcher.Constraint("Parallel", 54, 57))
sketch15.addConstraint(Sketcher.Constraint("Parallel", 56, 59))
sketch15.addConstraint(Sketcher.Constraint("Parallel", 59, 60))
sketch15.addConstraint(Sketcher.Constraint("Parallel", 57, 61))
sketch15.addConstraint(Sketcher.Constraint("Parallel", 60, 63))
sketch15.addConstraint(Sketcher.Constraint("Parallel", 63, 66))
sketch15.addConstraint(Sketcher.Constraint("Parallel", 66, 69))
sketch15.addConstraint(Sketcher.Constraint("Horizontal", 9, 2, 14, 2))
sketch15.addConstraint(Sketcher.Constraint("Horizontal", 37, 2, 48, 2))
sketch15.addConstraint(Sketcher.Constraint("Horizontal", 36, 2, 49, 2))
sketch15.addConstraint(Sketcher.Constraint("Horizontal", 35, 2, 50, 2))
sketch15.addConstraint(Sketcher.Constraint("Horizontal", 34, 2, 51, 2))
sketch15.addConstraint(Sketcher.Constraint("Horizontal", 40, 2, 54, 2))
sketch15.addConstraint(Sketcher.Constraint("Horizontal", 41, 2, 55, 2))
sketch15.addConstraint(Sketcher.Constraint("Horizontal", 55, 2, 57, 2))
sketch15.addConstraint(Sketcher.Constraint("Horizontal", 54, 2, 58, 2))
sketch15.addConstraint(Sketcher.Constraint("Horizontal", 44, 2, 60, 2))
sketch15.addConstraint(Sketcher.Constraint("Horizontal", 45, 2, 61, 2))
sketch15.addConstraint(Sketcher.Constraint("Horizontal", 46, 2, 62, 2))
sketch15.addConstraint(Sketcher.Constraint("Horizontal", 47, 2, 63, 2))
sketch15.addConstraint(Sketcher.Constraint("Vertical", 15, 2, 16, 2))
sketch15.addConstraint(Sketcher.Constraint("Vertical", 17, 2, 20, 2))
sketch15.addConstraint(Sketcher.Constraint("Vertical", 14, 2, 22, 2))
sketch15.addConstraint(Sketcher.Constraint("Vertical", 13, 2, 23, 2))
sketch15.addConstraint(Sketcher.Constraint("Vertical", 5, 2, 28, 2))
sketch15.addConstraint(Sketcher.Constraint("Vertical", 28, 2, 56, 2))
sketch15.addConstraint(Sketcher.Constraint("Equal", 13, 19))
sketch15.addConstraint(Sketcher.Constraint("Equal", 10, 21))
sketch15.addConstraint(Sketcher.Constraint("Equal", 52, 54))
sketch15.addConstraint(Sketcher.Constraint("DistanceY", 1, 2, 1, 1, 120.0))
sketch15.addConstraint(Sketcher.Constraint("DistanceY", 13, 1, 13, 2, 20.0))
sketch15.addConstraint(Sketcher.Constraint("Distance", 12, 20.0))
sketch15.addConstraint(Sketcher.Constraint("DistanceY", -1, 1, 11, 2, 20.0))
sketch15.addConstraint(Sketcher.Constraint("DistanceX", 0, 1, 0, 2, 100.0))
sketch15.addConstraint(Sketcher.Constraint("Angle", 5, Q("-30 deg")))
sketch15.addConstraint(Sketcher.Constraint("DistanceX", -1, 1, 0, 2, 50.0))
sketch15.addConstraint(Sketcher.Constraint("DistanceY", -1, 1, 0, 2, 65.0))
sketch15.addConstraint(Sketcher.Constraint("DistanceX", 6, 2, -1, 1, 10.0))
sketch15.addConstraint(Sketcher.Constraint("DistanceX", 10, 2, -1, 1, 45.0))
sketch15.addConstraint(Sketcher.Constraint("DistanceY", 26, 2, -1, 1, 50.0))
sketch15.addConstraint(Sketcher.Constraint("DistanceX", 57, 2, -1, 1, 2.5))
sketch15.addConstraint(Sketcher.Constraint("DistanceX", 27, 1, 27, 2, 24.282))
sketch15.addConstraint(Sketcher.Constraint("DistanceY", 10, 2, 10, 1, 33.812))
sketch15.addConstraint(Sketcher.Constraint("DistanceY", 18, 2, -1, 1, 4.33))
sketch15.addConstraint(Sketcher.Constraint("DistanceY", 17, 2, 17, 1, 23.3013))
sketch15.addConstraint(Sketcher.Constraint("DistanceY", 20, 2, -1, 1, 11.7543))
pad5 = body.newObject("PartDesign::Pad", "Pad004")
pad5.Profile = sketch15
pad5.Length = 5
pad5.Reversed = True

doc.recompute()
